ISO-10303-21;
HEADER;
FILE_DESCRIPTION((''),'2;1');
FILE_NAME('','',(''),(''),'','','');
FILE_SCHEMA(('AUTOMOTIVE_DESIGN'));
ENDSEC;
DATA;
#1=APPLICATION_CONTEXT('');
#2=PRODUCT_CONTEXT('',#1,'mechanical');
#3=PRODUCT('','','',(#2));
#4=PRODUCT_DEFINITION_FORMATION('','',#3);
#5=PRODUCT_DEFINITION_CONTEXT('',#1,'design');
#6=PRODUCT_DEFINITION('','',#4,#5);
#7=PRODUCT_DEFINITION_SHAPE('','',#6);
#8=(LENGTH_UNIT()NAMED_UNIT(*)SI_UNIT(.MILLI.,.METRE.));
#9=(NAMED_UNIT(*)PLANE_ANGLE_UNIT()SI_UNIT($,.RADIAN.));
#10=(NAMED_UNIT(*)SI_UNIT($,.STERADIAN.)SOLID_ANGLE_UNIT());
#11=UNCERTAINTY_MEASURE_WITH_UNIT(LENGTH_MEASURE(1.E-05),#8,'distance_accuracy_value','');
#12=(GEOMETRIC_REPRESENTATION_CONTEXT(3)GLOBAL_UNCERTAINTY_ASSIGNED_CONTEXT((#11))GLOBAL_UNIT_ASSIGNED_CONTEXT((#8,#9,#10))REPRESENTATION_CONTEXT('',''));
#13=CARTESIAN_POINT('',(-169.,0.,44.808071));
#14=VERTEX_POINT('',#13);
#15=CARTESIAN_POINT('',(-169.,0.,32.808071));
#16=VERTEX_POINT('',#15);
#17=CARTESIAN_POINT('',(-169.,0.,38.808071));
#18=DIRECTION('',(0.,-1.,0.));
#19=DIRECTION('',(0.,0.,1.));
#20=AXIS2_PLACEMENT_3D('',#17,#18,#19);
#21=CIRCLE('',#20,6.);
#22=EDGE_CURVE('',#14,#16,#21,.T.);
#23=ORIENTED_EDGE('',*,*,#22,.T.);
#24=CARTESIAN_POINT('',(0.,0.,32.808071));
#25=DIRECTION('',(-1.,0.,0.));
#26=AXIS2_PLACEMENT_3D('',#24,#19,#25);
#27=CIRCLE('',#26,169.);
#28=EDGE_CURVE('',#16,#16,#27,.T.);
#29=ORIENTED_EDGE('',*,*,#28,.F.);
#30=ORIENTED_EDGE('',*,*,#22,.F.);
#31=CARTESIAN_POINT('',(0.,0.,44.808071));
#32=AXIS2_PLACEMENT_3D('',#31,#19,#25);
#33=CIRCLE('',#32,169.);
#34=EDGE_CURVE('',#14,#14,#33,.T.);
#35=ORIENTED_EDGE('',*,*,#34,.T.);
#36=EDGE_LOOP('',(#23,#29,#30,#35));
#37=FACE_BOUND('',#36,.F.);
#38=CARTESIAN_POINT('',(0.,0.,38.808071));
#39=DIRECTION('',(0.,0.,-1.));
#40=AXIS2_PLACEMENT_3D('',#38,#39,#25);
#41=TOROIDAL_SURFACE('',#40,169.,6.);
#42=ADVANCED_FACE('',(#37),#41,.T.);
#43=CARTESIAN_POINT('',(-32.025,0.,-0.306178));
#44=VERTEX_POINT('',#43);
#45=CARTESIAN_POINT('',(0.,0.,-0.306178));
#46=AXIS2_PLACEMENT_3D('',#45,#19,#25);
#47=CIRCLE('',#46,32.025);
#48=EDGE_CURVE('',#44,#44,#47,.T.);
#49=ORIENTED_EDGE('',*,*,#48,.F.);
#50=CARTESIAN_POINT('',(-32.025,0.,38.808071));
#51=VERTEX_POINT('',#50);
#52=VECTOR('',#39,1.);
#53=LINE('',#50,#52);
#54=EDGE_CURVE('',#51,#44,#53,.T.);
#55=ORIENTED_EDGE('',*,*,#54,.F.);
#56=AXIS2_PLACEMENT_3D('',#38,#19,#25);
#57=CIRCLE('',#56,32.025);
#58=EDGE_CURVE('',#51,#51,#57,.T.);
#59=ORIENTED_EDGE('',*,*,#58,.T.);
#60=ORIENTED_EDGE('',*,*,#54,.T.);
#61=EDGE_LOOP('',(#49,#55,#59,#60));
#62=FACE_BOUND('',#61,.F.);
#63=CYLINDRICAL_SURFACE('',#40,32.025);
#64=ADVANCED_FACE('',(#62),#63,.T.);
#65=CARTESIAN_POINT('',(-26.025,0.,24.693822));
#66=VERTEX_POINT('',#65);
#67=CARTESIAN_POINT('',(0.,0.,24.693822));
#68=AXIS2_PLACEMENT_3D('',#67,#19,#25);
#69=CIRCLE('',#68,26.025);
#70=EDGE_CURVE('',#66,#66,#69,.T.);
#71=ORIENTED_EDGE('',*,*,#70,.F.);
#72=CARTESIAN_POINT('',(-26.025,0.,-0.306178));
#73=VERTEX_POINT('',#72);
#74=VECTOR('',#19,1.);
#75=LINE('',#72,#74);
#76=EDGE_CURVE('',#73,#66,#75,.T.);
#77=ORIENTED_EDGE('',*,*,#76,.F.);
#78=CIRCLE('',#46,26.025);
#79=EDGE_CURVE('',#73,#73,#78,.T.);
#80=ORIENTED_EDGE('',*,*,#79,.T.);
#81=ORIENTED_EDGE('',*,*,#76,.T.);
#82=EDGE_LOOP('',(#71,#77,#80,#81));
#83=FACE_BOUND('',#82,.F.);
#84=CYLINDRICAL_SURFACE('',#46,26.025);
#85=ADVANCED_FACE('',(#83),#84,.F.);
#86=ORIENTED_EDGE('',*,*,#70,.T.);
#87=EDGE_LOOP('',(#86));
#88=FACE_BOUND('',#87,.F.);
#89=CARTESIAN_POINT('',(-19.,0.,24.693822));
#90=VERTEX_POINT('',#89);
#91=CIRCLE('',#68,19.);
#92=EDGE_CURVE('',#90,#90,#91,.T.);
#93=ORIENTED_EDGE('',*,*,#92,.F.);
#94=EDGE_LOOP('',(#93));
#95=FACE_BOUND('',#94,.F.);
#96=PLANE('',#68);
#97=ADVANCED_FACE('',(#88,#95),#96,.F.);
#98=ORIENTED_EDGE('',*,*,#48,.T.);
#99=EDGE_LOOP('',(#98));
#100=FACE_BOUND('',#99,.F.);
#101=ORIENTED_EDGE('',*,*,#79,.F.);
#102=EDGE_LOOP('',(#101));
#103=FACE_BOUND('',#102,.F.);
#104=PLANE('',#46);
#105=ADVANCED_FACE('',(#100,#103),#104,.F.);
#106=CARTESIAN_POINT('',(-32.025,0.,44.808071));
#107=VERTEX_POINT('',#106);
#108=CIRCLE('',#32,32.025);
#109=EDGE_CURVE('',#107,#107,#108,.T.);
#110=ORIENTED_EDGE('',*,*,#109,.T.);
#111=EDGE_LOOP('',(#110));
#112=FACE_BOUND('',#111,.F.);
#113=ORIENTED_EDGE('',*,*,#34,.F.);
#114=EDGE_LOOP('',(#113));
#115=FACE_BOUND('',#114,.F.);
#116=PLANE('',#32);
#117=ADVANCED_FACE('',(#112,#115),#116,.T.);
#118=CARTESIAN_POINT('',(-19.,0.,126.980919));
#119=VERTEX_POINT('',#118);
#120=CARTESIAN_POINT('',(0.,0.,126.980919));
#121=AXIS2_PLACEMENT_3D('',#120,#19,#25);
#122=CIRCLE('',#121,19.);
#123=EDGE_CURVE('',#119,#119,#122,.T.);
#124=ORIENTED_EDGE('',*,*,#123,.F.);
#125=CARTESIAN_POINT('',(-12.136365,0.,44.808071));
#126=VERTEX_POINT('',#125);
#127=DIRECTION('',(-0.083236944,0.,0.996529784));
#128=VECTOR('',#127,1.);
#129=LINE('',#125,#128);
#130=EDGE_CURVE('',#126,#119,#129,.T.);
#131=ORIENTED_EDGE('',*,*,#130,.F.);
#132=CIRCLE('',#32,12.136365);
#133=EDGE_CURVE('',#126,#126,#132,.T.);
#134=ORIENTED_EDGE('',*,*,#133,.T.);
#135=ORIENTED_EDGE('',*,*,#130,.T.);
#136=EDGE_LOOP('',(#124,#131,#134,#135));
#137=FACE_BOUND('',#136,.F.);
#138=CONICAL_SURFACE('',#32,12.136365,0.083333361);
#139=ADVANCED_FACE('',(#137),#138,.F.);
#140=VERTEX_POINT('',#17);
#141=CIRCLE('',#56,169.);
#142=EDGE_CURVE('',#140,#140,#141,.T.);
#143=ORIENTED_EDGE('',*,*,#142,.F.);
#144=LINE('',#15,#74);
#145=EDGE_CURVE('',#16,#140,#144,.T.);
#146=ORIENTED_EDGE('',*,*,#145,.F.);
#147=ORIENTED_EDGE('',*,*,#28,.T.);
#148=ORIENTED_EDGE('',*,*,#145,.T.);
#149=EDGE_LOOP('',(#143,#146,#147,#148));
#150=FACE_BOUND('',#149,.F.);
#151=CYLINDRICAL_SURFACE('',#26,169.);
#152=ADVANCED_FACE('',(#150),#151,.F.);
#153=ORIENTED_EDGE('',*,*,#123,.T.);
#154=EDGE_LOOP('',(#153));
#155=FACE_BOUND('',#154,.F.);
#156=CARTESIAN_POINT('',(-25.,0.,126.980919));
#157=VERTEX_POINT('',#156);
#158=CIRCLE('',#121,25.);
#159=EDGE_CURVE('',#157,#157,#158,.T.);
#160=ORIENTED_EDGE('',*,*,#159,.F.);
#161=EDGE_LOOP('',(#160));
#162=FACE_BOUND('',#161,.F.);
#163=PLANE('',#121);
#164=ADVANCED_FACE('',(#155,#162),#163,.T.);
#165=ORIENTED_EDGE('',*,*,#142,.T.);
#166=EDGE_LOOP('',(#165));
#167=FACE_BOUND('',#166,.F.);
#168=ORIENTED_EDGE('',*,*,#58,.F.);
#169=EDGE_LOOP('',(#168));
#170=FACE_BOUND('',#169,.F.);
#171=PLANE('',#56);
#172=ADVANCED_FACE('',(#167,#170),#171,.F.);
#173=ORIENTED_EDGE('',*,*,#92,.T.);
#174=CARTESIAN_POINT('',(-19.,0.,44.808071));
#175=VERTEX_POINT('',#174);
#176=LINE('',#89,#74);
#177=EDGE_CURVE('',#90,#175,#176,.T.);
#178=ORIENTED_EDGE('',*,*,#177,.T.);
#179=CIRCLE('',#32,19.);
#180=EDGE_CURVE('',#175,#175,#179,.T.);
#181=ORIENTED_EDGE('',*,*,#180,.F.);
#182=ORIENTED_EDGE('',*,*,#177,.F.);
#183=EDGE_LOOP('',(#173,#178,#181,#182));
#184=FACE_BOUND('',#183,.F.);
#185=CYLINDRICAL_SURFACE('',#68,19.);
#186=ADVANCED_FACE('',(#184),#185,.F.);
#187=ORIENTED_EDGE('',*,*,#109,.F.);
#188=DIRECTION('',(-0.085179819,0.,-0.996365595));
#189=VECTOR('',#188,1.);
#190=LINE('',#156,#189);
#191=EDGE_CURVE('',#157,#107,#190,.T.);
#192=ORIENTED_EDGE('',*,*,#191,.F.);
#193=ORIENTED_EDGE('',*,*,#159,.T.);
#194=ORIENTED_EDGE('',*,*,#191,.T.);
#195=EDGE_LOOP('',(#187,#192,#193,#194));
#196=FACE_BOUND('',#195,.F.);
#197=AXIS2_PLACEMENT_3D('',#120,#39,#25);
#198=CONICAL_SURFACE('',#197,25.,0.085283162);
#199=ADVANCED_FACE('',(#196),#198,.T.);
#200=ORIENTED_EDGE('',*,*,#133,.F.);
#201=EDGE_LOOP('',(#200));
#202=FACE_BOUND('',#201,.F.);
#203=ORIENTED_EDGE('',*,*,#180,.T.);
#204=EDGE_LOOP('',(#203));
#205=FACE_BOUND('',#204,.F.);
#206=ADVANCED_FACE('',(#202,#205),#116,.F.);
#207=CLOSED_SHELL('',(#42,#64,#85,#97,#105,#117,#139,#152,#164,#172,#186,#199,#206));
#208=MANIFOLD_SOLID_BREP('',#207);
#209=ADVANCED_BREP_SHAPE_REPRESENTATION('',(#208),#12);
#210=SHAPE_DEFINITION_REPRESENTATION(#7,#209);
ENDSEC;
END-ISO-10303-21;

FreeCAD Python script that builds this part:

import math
import FreeCAD as App
import Part
import Sketcher
from FreeCAD import Vector
Q = App.Units.Quantity

doc = App.newDocument("Part")
body = doc.addObject("PartDesign::Body", "Body")

sketch1 = body.newObject("Sketcher::SketchObject", "Sketch")
sketch1.AttachmentSupport = (doc.getObject("XZ_Plane"), [""])
sketch1.MapMode = "FlatFace"
sketch1.addGeometry([
    Part.LineSegment(Vector(-32.025, -0.306178, 0), Vector(-26.025, -0.306178, 0)),
    Part.LineSegment(Vector(-26.025, -0.306178, 0), Vector(-26.025, 24.693822, 0)),
    Part.LineSegment(Vector(-26.025, 24.693822, 0), Vector(-19, 24.693822, 0)),
    Part.LineSegment(Vector(-19, 24.693822, 0), Vector(-19, 44.808071, 0)),
    Part.LineSegment(Vector(-19, 44.808071, 0), Vector(-12.136365, 44.808071, 0)),
    Part.LineSegment(Vector(-12.136365, 44.808071, 0), Vector(-19, 126.980919, 0)),
    Part.LineSegment(Vector(-19, 126.980919, 0), Vector(-25, 126.980919, 0)),
    Part.LineSegment(Vector(-25, 126.980919, 0), Vector(-32.025, 44.808071, 0)),
    Part.LineSegment(Vector(-32.025, 44.808071, 0), Vector(-169, 44.808071, 0)),
    Part.ArcOfCircle(Part.Circle(Vector(-169, 38.808071, 0), Vector(0, 0, 1), 6), math.radians(90), math.radians(270)),
    Part.LineSegment(Vector(-169, 32.808071, 0), Vector(-169, 38.808071, 0)),
    Part.LineSegment(Vector(-169, 38.808071, 0), Vector(-32.025, 38.808071, 0)),
    Part.LineSegment(Vector(-32.025, 38.808071, 0), Vector(-32.025, -0.306178, 0)),
], False)
sketch1.addConstraint([
    Sketcher.Constraint("Coincident", 0, 2, 1, 1),
    Sketcher.Constraint("Coincident", 1, 2, 2, 1),
    Sketcher.Constraint("Coincident", 2, 2, 3, 1),
    Sketcher.Constraint("Coincident", 3, 2, 4, 1),
    Sketcher.Constraint("Coincident", 4, 2, 5, 1),
    Sketcher.Constraint("Coincident", 5, 2, 6, 1),
    Sketcher.Constraint("Coincident", 6, 2, 7, 1),
    Sketcher.Constraint("Coincident", 7, 2, 8, 1),
    Sketcher.Constraint("Tangent", 8, 2, 9, 1),
    Sketcher.Constraint("Coincident", 9, 2, 10, 1),
    Sketcher.Constraint("Coincident", 10, 2, 11, 1),
    Sketcher.Constraint("Coincident", 11, 2, 12, 1),
    Sketcher.Constraint("Coincident", 12, 2, 0, 1),
    Sketcher.Constraint("Horizontal", 0),
    Sketcher.Constraint("Vertical", 1),
    Sketcher.Constraint("Horizontal", 2),
    Sketcher.Constraint("Vertical", 3),
    Sketcher.Constraint("Horizontal", 4),
    Sketcher.Constraint("Horizontal", 6),
    Sketcher.Constraint("Horizontal", 8),
    Sketcher.Constraint("Vertical", 10),
    Sketcher.Constraint("Horizontal", 11),
    Sketcher.Constraint("Vertical", 12),
    Sketcher.Constraint("Coincident", 10, 2, 9, 3),
    Sketcher.Constraint("Horizontal", 4, 2, 7, 2),
    Sketcher.Constraint("Vertical", 3, 2, 5, 2),
    Sketcher.Constraint("Vertical", 7, 2, 11, 2),
    Sketcher.Constraint("Equal", 0, 6),
    Sketcher.Constraint("Equal", 6, 10),
    Sketcher.Constraint("Radius", 9, Q("6 mm")),
    Sketcher.Constraint("DistanceY", 1, 1, 1, 2, Q("25 mm")),
    Sketcher.Constraint("DistanceX", 9, 3, -1, 1, Q("169 mm")),
    Sketcher.Constraint("DistanceX", 2, 2, -1, 1, Q("19 mm")),
    Sketcher.Constraint("DistanceX", 2, 1, 2, 2, Q("7.025 mm")),
    Sketcher.Constraint("Distance", 5, Q("82.458999 mm")),
    Sketcher.Constraint("DistanceY", 3, 1, 3, 2, Q("20.114249 mm")),
    Sketcher.Constraint("DistanceX", 4, 1, 4, 2, Q("6.863635 mm")),
    Sketcher.Constraint("DistanceY", -1, 1, 9, 3, Q("38.808071 mm")),
])
revolution = body.newObject("PartDesign::Revolution", "Revolution")
revolution.Profile = sketch1
revolution.ReferenceAxis = (sketch1, ["V_Axis"])
revolution.Angle = 360

doc.recompute()
